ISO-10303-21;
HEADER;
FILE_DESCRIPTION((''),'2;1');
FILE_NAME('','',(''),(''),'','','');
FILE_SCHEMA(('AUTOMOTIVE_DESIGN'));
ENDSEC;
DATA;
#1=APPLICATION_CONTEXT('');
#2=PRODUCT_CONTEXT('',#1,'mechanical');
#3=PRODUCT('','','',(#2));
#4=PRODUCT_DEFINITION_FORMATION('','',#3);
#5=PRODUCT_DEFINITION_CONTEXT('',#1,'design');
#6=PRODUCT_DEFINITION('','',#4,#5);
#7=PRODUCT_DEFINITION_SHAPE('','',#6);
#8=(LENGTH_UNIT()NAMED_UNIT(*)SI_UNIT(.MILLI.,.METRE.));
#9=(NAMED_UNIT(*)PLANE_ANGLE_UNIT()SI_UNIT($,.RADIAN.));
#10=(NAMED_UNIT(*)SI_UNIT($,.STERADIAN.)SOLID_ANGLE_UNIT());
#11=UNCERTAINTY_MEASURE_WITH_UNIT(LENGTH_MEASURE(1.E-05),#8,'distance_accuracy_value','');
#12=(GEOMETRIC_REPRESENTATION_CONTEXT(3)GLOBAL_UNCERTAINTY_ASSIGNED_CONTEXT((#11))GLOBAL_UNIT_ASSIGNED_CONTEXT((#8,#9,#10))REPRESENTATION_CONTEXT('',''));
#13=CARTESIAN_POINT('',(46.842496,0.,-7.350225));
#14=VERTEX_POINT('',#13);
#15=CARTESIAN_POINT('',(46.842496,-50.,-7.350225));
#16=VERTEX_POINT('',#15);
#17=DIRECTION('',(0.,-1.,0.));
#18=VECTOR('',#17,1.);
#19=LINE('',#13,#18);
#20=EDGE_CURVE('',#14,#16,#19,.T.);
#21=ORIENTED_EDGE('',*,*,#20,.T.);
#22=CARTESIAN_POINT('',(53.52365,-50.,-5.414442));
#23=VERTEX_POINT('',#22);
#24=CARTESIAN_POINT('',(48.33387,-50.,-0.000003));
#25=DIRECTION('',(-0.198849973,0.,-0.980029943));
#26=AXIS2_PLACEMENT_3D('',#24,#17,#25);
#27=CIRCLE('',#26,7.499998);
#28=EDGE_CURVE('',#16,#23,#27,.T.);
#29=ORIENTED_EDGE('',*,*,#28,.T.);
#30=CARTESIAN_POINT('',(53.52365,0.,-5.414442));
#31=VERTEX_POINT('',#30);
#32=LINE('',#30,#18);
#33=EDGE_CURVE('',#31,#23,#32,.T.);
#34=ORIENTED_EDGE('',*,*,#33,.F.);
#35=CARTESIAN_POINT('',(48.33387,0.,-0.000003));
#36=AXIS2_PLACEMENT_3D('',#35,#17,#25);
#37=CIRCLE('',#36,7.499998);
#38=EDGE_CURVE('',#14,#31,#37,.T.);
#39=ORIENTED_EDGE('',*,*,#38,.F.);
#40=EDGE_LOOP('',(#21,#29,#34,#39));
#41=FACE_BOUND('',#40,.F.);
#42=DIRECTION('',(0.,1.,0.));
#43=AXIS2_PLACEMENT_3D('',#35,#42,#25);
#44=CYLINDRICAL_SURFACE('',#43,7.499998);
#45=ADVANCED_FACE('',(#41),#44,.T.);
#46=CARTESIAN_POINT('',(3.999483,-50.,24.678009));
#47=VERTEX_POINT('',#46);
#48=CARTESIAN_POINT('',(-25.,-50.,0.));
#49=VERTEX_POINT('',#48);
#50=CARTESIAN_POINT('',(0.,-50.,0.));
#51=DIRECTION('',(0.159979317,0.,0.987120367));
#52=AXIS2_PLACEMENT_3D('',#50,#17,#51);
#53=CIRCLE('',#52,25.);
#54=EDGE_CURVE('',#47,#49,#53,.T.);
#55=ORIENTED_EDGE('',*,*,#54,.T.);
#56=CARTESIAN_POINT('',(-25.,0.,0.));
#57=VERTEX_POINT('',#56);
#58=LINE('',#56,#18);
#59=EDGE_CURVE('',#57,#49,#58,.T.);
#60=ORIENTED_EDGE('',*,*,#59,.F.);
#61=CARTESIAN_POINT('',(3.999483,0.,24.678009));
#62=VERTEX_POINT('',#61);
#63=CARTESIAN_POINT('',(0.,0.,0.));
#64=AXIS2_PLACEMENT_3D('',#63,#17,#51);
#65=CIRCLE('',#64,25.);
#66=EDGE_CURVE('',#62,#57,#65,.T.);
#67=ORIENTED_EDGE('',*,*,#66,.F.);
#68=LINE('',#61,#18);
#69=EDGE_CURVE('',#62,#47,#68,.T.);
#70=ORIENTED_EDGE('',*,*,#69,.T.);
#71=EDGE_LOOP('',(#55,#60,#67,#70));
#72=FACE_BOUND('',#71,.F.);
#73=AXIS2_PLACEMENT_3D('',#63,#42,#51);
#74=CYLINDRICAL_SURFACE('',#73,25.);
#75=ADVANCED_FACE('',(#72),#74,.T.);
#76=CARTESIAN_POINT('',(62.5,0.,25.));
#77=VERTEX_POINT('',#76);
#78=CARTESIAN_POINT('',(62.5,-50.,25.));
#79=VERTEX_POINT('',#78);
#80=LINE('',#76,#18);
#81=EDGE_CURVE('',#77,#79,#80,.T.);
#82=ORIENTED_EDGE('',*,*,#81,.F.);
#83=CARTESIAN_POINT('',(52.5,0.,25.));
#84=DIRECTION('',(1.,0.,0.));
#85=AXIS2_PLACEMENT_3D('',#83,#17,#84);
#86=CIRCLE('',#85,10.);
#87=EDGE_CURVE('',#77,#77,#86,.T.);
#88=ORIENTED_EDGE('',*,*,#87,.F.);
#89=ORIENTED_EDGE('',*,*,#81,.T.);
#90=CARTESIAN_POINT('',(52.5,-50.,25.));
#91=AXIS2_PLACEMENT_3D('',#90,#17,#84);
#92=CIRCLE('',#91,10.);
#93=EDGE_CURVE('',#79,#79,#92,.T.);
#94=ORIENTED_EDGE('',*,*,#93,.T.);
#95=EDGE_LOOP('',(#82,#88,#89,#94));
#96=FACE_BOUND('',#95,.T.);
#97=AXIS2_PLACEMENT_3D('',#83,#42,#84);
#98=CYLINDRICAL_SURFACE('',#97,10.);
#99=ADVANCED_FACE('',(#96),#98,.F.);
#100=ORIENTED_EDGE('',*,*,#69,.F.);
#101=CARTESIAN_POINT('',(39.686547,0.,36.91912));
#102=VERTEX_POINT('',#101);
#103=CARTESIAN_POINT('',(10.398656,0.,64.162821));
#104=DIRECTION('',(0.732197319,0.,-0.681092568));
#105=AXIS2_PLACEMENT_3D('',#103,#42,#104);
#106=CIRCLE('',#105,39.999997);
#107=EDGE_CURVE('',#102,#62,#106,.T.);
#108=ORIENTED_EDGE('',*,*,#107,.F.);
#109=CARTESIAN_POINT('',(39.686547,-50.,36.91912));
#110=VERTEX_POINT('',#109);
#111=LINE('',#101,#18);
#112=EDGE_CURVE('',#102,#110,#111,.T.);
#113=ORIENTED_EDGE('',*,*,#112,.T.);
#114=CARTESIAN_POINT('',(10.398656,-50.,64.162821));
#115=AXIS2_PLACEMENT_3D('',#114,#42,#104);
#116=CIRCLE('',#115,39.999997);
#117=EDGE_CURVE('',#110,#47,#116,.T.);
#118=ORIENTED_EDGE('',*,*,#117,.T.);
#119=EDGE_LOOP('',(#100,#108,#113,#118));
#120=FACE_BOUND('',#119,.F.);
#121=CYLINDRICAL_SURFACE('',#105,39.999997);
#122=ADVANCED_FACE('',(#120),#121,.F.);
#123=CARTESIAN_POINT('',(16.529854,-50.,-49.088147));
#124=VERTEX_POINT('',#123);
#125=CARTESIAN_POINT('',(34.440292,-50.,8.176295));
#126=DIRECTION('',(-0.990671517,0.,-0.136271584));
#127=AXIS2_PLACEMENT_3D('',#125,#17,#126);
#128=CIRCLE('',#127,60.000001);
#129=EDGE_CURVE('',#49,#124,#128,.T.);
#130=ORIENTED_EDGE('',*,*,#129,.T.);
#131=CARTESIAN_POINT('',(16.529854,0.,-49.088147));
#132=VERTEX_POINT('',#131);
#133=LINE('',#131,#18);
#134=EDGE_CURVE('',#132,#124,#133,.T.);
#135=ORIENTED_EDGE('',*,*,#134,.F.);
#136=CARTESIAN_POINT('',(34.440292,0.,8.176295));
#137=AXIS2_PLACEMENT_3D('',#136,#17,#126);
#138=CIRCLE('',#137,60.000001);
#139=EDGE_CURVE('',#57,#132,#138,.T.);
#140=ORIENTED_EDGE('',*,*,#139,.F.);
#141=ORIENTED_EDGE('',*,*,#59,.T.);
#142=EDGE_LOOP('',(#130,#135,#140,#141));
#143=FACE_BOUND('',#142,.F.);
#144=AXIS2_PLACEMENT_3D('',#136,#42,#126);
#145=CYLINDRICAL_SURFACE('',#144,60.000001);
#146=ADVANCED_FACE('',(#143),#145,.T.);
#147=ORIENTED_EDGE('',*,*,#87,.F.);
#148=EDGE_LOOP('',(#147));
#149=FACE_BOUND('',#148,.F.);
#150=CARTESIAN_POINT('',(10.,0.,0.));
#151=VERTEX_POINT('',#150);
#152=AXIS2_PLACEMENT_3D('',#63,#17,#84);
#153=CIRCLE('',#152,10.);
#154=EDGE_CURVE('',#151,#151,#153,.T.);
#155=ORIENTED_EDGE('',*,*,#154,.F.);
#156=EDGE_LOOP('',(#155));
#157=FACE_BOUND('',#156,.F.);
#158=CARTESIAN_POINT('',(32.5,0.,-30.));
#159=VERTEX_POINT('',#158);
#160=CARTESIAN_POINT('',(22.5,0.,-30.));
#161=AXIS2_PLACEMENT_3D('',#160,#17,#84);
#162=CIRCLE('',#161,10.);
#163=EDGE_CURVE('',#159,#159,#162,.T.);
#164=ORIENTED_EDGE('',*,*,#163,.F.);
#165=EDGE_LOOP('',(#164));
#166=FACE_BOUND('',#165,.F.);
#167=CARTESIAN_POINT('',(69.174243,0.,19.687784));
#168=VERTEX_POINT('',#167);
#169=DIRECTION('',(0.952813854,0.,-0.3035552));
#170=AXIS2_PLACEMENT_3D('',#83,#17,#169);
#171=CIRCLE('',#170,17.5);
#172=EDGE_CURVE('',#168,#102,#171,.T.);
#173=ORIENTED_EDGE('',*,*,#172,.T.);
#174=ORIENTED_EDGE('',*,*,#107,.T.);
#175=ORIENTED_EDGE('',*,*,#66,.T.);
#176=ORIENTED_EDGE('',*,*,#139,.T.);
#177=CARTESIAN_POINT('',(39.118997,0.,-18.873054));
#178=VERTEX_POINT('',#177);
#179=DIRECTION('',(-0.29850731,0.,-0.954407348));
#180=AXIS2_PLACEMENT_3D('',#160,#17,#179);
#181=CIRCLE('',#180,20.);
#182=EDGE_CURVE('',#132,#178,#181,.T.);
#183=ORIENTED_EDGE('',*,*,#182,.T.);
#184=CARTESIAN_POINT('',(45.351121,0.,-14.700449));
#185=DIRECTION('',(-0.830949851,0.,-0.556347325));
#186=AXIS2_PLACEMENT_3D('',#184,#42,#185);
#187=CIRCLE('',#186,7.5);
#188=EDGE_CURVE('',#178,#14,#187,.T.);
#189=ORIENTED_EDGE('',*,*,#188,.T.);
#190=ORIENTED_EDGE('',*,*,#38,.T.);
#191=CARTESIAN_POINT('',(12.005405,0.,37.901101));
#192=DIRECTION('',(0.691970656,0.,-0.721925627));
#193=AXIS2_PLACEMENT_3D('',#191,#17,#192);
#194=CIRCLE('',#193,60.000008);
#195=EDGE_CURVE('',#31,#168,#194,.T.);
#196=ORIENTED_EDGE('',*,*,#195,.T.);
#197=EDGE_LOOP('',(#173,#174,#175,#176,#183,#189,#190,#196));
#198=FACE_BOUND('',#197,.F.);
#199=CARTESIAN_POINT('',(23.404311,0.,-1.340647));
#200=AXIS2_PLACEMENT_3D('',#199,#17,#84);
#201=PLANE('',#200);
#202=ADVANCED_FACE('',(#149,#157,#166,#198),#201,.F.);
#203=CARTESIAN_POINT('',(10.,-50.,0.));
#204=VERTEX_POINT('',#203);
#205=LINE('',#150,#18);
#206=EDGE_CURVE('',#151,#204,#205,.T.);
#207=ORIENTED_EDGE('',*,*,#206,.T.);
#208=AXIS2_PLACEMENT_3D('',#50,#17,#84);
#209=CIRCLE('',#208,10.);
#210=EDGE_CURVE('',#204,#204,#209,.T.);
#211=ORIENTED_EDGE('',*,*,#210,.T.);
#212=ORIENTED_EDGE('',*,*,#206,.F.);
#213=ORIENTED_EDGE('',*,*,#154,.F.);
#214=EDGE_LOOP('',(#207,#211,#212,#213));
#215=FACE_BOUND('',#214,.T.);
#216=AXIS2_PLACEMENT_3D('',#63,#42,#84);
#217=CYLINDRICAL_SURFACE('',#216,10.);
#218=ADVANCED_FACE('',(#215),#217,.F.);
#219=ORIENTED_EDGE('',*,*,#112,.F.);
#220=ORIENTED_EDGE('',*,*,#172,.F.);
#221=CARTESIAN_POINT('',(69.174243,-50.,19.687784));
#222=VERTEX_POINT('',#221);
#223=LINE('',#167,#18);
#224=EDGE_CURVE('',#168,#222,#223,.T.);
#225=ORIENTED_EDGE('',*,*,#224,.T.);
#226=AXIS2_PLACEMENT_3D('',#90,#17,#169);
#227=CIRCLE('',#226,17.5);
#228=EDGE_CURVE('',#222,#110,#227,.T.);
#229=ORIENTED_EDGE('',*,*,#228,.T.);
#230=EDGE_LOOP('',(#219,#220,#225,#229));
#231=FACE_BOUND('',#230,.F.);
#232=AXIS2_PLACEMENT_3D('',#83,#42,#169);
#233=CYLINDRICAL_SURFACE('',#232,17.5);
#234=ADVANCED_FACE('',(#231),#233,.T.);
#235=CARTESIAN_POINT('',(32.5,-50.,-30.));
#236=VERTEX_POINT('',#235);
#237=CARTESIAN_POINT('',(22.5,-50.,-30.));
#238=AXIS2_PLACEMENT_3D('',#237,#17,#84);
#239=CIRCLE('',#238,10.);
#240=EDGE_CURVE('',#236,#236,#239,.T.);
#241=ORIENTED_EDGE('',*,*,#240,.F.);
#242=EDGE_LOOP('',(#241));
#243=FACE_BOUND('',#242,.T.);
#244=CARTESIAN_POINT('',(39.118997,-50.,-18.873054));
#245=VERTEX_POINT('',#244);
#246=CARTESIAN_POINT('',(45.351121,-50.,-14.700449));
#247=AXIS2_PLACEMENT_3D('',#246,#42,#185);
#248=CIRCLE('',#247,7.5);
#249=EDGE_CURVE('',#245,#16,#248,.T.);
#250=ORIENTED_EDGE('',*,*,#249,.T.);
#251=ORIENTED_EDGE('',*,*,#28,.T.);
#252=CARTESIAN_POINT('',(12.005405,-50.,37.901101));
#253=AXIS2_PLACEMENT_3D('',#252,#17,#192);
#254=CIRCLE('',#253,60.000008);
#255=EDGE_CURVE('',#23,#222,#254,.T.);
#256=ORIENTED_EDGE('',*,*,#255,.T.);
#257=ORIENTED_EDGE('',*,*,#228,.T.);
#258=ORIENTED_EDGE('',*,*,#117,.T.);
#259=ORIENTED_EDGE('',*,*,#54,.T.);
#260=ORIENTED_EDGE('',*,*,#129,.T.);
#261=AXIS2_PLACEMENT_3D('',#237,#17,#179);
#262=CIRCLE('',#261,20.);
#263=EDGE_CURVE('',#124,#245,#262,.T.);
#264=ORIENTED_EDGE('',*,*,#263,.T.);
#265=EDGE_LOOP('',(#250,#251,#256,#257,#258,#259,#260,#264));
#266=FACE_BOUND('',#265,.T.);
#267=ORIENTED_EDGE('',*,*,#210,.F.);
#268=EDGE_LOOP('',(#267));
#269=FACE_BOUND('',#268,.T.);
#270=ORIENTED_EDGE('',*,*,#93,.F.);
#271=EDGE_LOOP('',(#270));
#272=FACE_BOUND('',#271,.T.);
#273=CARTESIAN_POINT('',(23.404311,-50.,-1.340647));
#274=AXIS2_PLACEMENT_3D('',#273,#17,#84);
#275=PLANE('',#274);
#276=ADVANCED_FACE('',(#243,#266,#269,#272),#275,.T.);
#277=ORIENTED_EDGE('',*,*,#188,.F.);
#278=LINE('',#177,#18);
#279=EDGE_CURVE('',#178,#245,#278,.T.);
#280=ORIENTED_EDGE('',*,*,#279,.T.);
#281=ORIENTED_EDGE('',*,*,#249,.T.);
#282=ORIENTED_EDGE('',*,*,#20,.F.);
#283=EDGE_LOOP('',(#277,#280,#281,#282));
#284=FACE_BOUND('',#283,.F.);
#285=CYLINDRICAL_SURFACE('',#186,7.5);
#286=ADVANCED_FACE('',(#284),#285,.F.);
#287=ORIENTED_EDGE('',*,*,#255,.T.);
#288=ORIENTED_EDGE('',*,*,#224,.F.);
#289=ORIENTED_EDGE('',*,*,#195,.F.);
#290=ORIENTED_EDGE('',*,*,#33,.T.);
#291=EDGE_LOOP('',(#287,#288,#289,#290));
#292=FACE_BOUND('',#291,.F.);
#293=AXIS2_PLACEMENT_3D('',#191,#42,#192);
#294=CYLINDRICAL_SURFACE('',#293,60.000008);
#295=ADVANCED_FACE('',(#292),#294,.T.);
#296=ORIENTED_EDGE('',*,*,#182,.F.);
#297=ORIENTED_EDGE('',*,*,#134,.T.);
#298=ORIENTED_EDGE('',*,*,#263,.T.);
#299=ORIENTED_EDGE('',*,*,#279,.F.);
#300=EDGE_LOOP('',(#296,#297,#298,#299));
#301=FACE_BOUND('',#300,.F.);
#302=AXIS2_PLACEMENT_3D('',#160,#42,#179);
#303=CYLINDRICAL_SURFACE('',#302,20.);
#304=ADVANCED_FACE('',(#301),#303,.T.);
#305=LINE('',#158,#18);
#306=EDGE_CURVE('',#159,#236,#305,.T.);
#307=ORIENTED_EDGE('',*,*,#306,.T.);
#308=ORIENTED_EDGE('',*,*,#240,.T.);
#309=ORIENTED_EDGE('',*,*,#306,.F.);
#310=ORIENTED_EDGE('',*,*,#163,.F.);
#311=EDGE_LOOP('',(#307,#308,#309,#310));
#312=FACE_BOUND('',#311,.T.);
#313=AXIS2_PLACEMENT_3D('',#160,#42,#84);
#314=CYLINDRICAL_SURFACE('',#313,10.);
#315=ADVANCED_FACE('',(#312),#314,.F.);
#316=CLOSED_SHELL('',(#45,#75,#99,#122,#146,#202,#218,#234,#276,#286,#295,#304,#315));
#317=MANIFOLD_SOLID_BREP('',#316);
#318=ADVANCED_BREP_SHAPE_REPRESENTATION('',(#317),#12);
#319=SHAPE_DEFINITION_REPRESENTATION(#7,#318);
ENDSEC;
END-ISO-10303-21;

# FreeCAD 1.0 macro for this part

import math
import FreeCAD as App
import Part
import Sketcher

V = App.Vector

doc = App.newDocument("Part")
params = doc.addObject("Spreadsheet::Sheet", "Params")
for row, (alias, value) in enumerate([
    ("sketch1_diameter", "20 mm"),
    ("sketch1_radius", "25 mm"),
    ("sketch1_radius2", "60.000001 mm"),
    ("sketch1_radius3", "20 mm"),
    ("sketch1_radius4", "7.5 mm"),
    ("pad1_length", "50 mm"),
], start=1):
    params.set(f"A{row}", alias)
    params.set(f"B{row}", "=" + value)
    params.setAlias(f"B{row}", alias)

body = doc.addObject("PartDesign::Body", "Body")

sketch1 = body.newObject("Sketcher::SketchObject", "Sketch")
sketch1.AttachmentSupport = (doc.getObject("XZ_Plane"), [""])
sketch1.MapMode = "FlatFace"
sketch1.addGeometry(Part.ArcOfCircle(Part.Circle(V(10, 64, 0), V(0, 0, 1), 40), math.radians(-99), math.radians(-43)), False)
sketch1.addGeometry(Part.ArcOfCircle(Part.Circle(V(0, 0, 0), V(0, 0, 1), 25), math.radians(81), math.radians(180)), False)
sketch1.addGeometry(Part.ArcOfCircle(Part.Circle(V(34, 8, 0), V(0, 0, 1), 60), math.radians(-172), math.radians(-107)), False)
sketch1.addGeometry(Part.ArcOfCircle(Part.Circle(V(23, -30, 0), V(0, 0, 1), 20), math.radians(-107), math.radians(34)), False)
sketch1.addGeometry(Part.ArcOfCircle(Part.Circle(V(45, -15, 0), V(0, 0, 1), 7), math.radians(79), math.radians(214)), False)
sketch1.addGeometry(Part.ArcOfCircle(Part.Circle(V(48, 0, 0), V(0, 0, 1), 7), math.radians(-101), math.radians(-46)), False)
sketch1.addGeometry(Part.ArcOfCircle(Part.Circle(V(12, 38, 0), V(0, 0, 1), 60), math.radians(-46), math.radians(-18)), False)
sketch1.addGeometry(Part.ArcOfCircle(Part.Circle(V(53, 25, 0), V(0, 0, 1), 18), math.radians(-18), math.radians(137)), False)
sketch1.addGeometry(Part.Circle(V(22, -30, 0), V(0, 0, 1), 10), False)
sketch1.addGeometry(Part.Circle(V(0, 0, 0), V(0, 0, 1), 10), False)
sketch1.addGeometry(Part.Circle(V(52, 25, 0), V(0, 0, 1), 10), False)
sketch1.addConstraint(Sketcher.Constraint("Tangent", 0, 1, 1, 1))
sketch1.addConstraint(Sketcher.Constraint("Coincident", 1, 2, 2, 1))
sketch1.addConstraint(Sketcher.Constraint("Tangent", 2, 2, 3, 1))
sketch1.addConstraint(Sketcher.Constraint("Tangent", 3, 2, 4, 2))
sketch1.addConstraint(Sketcher.Constraint("Tangent", 4, 1, 5, 1))
sketch1.addConstraint(Sketcher.Constraint("Tangent", 5, 2, 6, 1))
sketch1.addConstraint(Sketcher.Constraint("Tangent", 6, 2, 7, 1))
sketch1.addConstraint(Sketcher.Constraint("Tangent", 7, 2, 0, 2))
sketch1.addConstraint(Sketcher.Constraint("Coincident", 1, 3, -1, 1))
sketch1.addConstraint(Sketcher.Constraint("Coincident", 9, 3, -1, 1))
sketch1.addConstraint(Sketcher.Constraint("Coincident", 8, 3, 3, 3))
sketch1.addConstraint(Sketcher.Constraint("Coincident", 10, 3, 7, 3))
sketch1.addConstraint(Sketcher.Constraint("Equal", 4, 5))
sketch1.addConstraint(Sketcher.Constraint("Equal", 8, 9))
sketch1.addConstraint(Sketcher.Constraint("Equal", 9, 10))
sketch1.addConstraint(Sketcher.Constraint("PointOnObject", 1, 2, -1))
sketch1.addConstraint(Sketcher.Constraint("Diameter", 8, 20.0))
sketch1.addConstraint(Sketcher.Constraint("Radius", 1, 25.0))
sketch1.addConstraint(Sketcher.Constraint("Radius", 2, 60.000001))
sketch1.addConstraint(Sketcher.Constraint("Radius", 3, 20.0))
sketch1.addConstraint(Sketcher.Constraint("Radius", 4, 7.5))
sketch1.addConstraint(Sketcher.Constraint("Radius", 7, 17.5))
sketch1.addConstraint(Sketcher.Constraint("DistanceY", 3, 3, -1, 1, 30.0))
sketch1.addConstraint(Sketcher.Constraint("DistanceY", -1, 1, 7, 3, 25.0))
sketch1.addConstraint(Sketcher.Constraint("DistanceX", -1, 1, 3, 3, 22.5))
sketch1.addConstraint(Sketcher.Constraint("DistanceX", -1, 1, 7, 3, 52.5))
sketch1.addConstraint(Sketcher.Constraint("Radius", 0, 39.999997))
sketch1.addConstraint(Sketcher.Constraint("Radius", 6, 60.000008))
sketch1.addConstraint(Sketcher.Constraint("DistanceY", -1, 1, 6, 3, 37.901101))
sketch1.addConstraint(Sketcher.Constraint("DistanceX", 3, 2, 4, 1, 7.723499))
sketch1.setExpression("Constraints[16]", "Params.sketch1_diameter")
sketch1.setExpression("Constraints[17]", "Params.sketch1_radius")
sketch1.setExpression("Constraints[18]", "Params.sketch1_radius2")
sketch1.setExpression("Constraints[19]", "Params.sketch1_radius3")
sketch1.setExpression("Constraints[20]", "Params.sketch1_radius4")
pad1 = body.newObject("PartDesign::Pad", "Pad")
pad1.Profile = sketch1
pad1.setExpression("Length", "Params.pad1_length")

doc.recompute()
